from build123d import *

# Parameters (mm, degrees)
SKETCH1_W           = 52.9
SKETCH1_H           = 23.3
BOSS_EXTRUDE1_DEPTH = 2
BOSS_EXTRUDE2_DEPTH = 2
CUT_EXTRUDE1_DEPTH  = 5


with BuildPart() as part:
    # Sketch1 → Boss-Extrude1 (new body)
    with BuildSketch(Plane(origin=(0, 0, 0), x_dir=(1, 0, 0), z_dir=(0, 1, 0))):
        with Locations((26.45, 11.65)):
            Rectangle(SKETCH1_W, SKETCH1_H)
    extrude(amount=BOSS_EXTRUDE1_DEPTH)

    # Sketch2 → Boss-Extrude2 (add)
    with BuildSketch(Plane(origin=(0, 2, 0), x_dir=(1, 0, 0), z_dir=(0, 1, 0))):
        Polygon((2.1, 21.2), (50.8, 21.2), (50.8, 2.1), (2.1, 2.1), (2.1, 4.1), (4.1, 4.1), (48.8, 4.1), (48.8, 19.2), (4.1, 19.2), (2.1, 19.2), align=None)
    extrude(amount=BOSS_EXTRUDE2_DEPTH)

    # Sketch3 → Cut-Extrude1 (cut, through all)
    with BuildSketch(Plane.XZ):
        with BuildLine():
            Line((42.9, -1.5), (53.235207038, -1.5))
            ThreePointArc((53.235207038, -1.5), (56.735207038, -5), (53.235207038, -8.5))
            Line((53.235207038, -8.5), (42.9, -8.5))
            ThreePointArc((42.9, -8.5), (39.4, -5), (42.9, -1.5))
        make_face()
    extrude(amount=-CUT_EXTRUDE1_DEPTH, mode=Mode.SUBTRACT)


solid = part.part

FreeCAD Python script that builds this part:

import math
import FreeCAD as App
import Part
import Sketcher
Q = App.Units.Quantity


def add_polygon(sketch, points):
    """Adds a closed chain of lines whose ends are joined by coincident constraints."""
    first, n = sketch.GeometryCount, len(points)
    for a, b in zip(points, points[1:] + points[:1]):
        sketch.addGeometry(Part.LineSegment(App.Vector(*a, 0), App.Vector(*b, 0)), False)
    for i in range(n):
        sketch.addConstraint(Sketcher.Constraint("Coincident", first + i, 2, first + (i + 1) % n, 1))

doc = App.newDocument("Part")
params = doc.addObject("Spreadsheet::Sheet", "Params")
for row, (alias, value) in enumerate([
    ("sketch1_width", "52.9 mm"),
    ("sketch1_height", "23.3 mm"),
    ("pad1_length", "2 mm"),
    ("sketch2_height", "2 mm"),
    ("sketch2_width", "48.7 mm"),
    ("sketch2_width2", "46.7 mm"),
    ("sketch2_height2", "15.1 mm"),
    ("pad2_length", "2 mm"),
    ("sketch3_radius", "3.5 mm"),
], start=1):
    params.set(f"A{row}", alias)
    params.set(f"B{row}", "=" + value)
    params.setAlias(f"B{row}", alias)

body = doc.addObject("PartDesign::Body", "Body")

# Sketch on XZ plane
sketch1 = doc.addObject("Sketcher::SketchObject", "Sketch")
body.addObject(sketch1)
sketch1.AttachmentSupport = (doc.XZ_Plane, [""])
sketch1.MapMode = "FlatFace"
add_polygon(sketch1, [(0, -23), (0, 0), (53, 0), (53, -23)])  # lines 0-3
sketch1.addConstraint([
    Sketcher.Constraint("Vertical", 0),
    Sketcher.Constraint("Horizontal", 1),
    Sketcher.Constraint("Vertical", 2),
    Sketcher.Constraint("Horizontal", 3),
    Sketcher.Constraint("Coincident", 0, 2, -1, 1),
    Sketcher.Constraint("DistanceX", 1, 1, 1, 2, Q("52.9 mm")),
    Sketcher.Constraint("DistanceY", 0, 1, 0, 2, Q("23.3 mm")),
])
sketch1.setExpression("Constraints[9]", "Params.sketch1_width")
sketch1.setExpression("Constraints[10]", "Params.sketch1_height")
pad1 = doc.addObject("PartDesign::Pad", "Pad")
body.addObject(pad1)
pad1.Profile = sketch1
pad1.setExpression("Length", "Params.pad1_length")
pad1.Reversed = True

# Sketch on XZ plane
sketch2 = doc.addObject("Sketcher::SketchObject", "Sketch001")
body.addObject(sketch2)
sketch2.AttachmentSupport = (doc.XZ_Plane, [""])
sketch2.MapMode = "FlatFace"
sketch2.AttachmentOffset = App.Placement(App.Vector(0, 0, -2), App.Rotation())
add_polygon(sketch2, [(50.8, -21.2), (2.1, -21.2), (2.1, -19.2), (48.8, -19.2), (48.8, -4.1), (2.1, -4.1), (2.1, -2.1), (50.8, -2.1)])  # lines 0-7
sketch2.addConstraint([
    Sketcher.Constraint("Horizontal", 0),
    Sketcher.Constraint("Vertical", 1),
    Sketcher.Constraint("Horizontal", 2),
    Sketcher.Constraint("Vertical", 3),
    Sketcher.Constraint("Horizontal", 4),
    Sketcher.Constraint("Vertical", 5),
    Sketcher.Constraint("Horizontal", 6),
    Sketcher.Constraint("Vertical", 7),
    Sketcher.Constraint("Vertical", 1, 2, 4, 2),
    Sketcher.Constraint("Equal", 1, 5),
    Sketcher.Constraint("DistanceY", 1, 1, 1, 2, Q("2 mm")),
    Sketcher.Constraint("DistanceX", 0, 2, 0, 1, Q("48.7 mm")),
    Sketcher.Constraint("DistanceX", 2, 1, 2, 2, Q("46.7 mm")),
    Sketcher.Constraint("DistanceY", 3, 1, 3, 2, Q("15.1 mm")),
    Sketcher.Constraint("DistanceX", -1, 1, 0, 2, Q("2.1 mm")),
    Sketcher.Constraint("DistanceY", 0, 2, -1, 1, Q("21.2 mm")),
])
sketch2.setExpression("Constraints[18]", "Params.sketch2_height")
sketch2.setExpression("Constraints[19]", "Params.sketch2_width")
sketch2.setExpression("Constraints[20]", "Params.sketch2_width2")
sketch2.setExpression("Constraints[21]", "Params.sketch2_height2")
pad2 = doc.addObject("PartDesign::Pad", "Pad001")
body.addObject(pad2)
pad2.Profile = sketch2
pad2.setExpression("Length", "Params.pad2_length")
pad2.Reversed = True

# Sketch on XZ plane
sketch3 = doc.addObject("Sketcher::SketchObject", "Sketch002")
body.addObject(sketch3)
sketch3.AttachmentSupport = (doc.XZ_Plane, [""])
sketch3.MapMode = "FlatFace"
sketch3.addGeometry([
    Part.LineSegment(App.Vector(53.2, -1.5, 0), App.Vector(42.9, -1.5, 0)),
    Part.ArcOfCircle(Part.Circle(App.Vector(42.9, -5, 0), App.Vector(0, 0, 1), 3.5), math.radians(90), math.radians(270)),
    Part.LineSegment(App.Vector(42.9, -8.5, 0), App.Vector(53.2, -8.5, 0)),
    Part.ArcOfCircle(Part.Circle(App.Vector(53.2, -5, 0), App.Vector(0, 0, 1), 3.5), math.radians(-90), math.radians(90)),
], False)
sketch3.addConstraint([
    Sketcher.Constraint("Tangent", 0, 2, 1, 1),
    Sketcher.Constraint("Tangent", 1, 2, 2, 1),
    Sketcher.Constraint("Tangent", 2, 2, 3, 1),
    Sketcher.Constraint("Tangent", 3, 2, 0, 1),
    Sketcher.Constraint("Horizontal", 0),
    Sketcher.Constraint("Horizontal", 2),
    Sketcher.Constraint("Radius", 1, Q("3.5 mm")),
    Sketcher.Constraint("DistanceY", 1, 3, -1, 1, Q("5 mm")),
    Sketcher.Constraint("DistanceX", -1, 1, 1, 3, Q("42.9 mm")),
    Sketcher.Constraint("DistanceX", 0, 2, 0, 1, Q("10.335207 mm")),
])
sketch3.setExpression("Constraints[6]", "Params.sketch3_radius")
pocket1 = doc.addObject("PartDesign::Pocket", "Pocket")
body.addObject(pocket1)
pocket1.Profile = sketch3
pocket1.Type = "ThroughAll"

doc.recompute()
